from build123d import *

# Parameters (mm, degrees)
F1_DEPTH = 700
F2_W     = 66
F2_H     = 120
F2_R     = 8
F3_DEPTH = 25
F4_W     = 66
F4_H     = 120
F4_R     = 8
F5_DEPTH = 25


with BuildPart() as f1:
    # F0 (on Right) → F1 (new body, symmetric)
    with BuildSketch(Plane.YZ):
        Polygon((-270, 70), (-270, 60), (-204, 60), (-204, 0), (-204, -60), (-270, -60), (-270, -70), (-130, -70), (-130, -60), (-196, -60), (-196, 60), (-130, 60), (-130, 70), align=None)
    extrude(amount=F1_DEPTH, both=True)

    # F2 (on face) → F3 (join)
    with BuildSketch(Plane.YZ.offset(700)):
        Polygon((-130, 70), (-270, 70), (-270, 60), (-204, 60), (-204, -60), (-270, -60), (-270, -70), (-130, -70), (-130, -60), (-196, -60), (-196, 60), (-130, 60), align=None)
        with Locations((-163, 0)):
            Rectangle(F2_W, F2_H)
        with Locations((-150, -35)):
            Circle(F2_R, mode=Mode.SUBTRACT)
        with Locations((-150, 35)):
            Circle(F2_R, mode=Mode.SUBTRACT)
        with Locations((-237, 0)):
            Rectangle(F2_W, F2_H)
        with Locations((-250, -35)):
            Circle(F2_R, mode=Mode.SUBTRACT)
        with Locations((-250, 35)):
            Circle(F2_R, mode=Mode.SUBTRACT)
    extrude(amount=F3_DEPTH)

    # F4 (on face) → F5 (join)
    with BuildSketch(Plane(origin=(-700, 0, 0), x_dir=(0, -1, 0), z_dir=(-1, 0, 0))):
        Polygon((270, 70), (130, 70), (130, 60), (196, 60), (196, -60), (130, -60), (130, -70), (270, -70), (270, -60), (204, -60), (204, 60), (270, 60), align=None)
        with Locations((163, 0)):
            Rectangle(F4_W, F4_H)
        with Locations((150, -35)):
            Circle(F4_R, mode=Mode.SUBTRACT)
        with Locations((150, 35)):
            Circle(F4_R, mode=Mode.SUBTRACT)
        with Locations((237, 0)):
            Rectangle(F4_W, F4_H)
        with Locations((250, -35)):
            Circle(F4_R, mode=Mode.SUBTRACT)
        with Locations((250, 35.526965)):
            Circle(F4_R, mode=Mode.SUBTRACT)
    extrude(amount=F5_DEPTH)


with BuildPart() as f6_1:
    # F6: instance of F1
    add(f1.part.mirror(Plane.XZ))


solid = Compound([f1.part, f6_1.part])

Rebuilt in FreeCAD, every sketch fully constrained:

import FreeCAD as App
import Part
import Sketcher

V = App.Vector


def add_polygon(sketch, points):
    """Adds a closed chain of lines whose ends are joined by coincident constraints."""
    first, n = sketch.GeometryCount, len(points)
    for a, b in zip(points, points[1:] + points[:1]):
        sketch.addGeometry(Part.LineSegment(App.Vector(*a, 0), App.Vector(*b, 0)), False)
    for i in range(n):
        sketch.addConstraint(Sketcher.Constraint("Coincident", first + i, 2, first + (i + 1) % n, 1))

doc = App.newDocument("Part")
params = doc.addObject("Spreadsheet::Sheet", "Params")
for row, (alias, value) in enumerate([
    ("sketch1_width", "66 mm"),
    ("sketch1_width2", "140 mm"),
    ("sketch1_height", "10 mm"),
    ("sketch1_height2", "120 mm"),
    ("pad1_length", "1400 mm"),
    ("sketch2_diameter", "16 mm"),
    ("sketch2_width", "140 mm"),
    ("pad2_length", "25 mm"),
    ("sketch3_diameter", "16 mm"),
    ("sketch3_width", "140 mm"),
    ("pad3_length", "25 mm"),
], start=1):
    params.set(f"A{row}", alias)
    params.set(f"B{row}", "=" + value)
    params.setAlias(f"B{row}", alias)

body = doc.addObject("PartDesign::Body", "Body")

# Sketch on YZ plane
sketch1 = doc.addObject("Sketcher::SketchObject", "Sketch")
body.addObject(sketch1)
sketch1.AttachmentSupport = (doc.YZ_Plane, [""])
sketch1.MapMode = "FlatFace"
add_polygon(sketch1, [(-270, 70), (-270, 60), (-204, 60), (-204, -60), (-270, -60), (-270, -70), (-130, -70), (-130, -60), (-196, -60), (-196, 60), (-130, 60), (-130, 70)])  # lines 0-11
sketch1.addConstraint(Sketcher.Constraint("Vertical", 0))
sketch1.addConstraint(Sketcher.Constraint("Horizontal", 1))
sketch1.addConstraint(Sketcher.Constraint("Vertical", 2))
sketch1.addConstraint(Sketcher.Constraint("Horizontal", 3))
sketch1.addConstraint(Sketcher.Constraint("Vertical", 4))
sketch1.addConstraint(Sketcher.Constraint("Horizontal", 5))
sketch1.addConstraint(Sketcher.Constraint("Vertical", 6))
sketch1.addConstraint(Sketcher.Constraint("Horizontal", 7))
sketch1.addConstraint(Sketcher.Constraint("Vertical", 8))
sketch1.addConstraint(Sketcher.Constraint("Horizontal", 9))
sketch1.addConstraint(Sketcher.Constraint("Vertical", 10))
sketch1.addConstraint(Sketcher.Constraint("Horizontal", 11))
sketch1.addConstraint(Sketcher.Constraint("Symmetric", 0, 2, 3, 2, -1))
sketch1.addConstraint(Sketcher.Constraint("Symmetric", 6, 2, 9, 2, -1))
sketch1.addConstraint(Sketcher.Constraint("Horizontal", 3, 2, 6, 2))
sketch1.addConstraint(Sketcher.Constraint("Equal", 3, 7))
sketch1.addConstraint(Sketcher.Constraint("Equal", 0, 4))
sketch1.addConstraint(Sketcher.Constraint("DistanceX", 1, 1, 1, 2, 66.0))
sketch1.addConstraint(Sketcher.Constraint("DistanceX", 5, 1, 5, 2, 140.0))
sketch1.addConstraint(Sketcher.Constraint("DistanceY", 0, 2, 0, 1, 10.0))
sketch1.addConstraint(Sketcher.Constraint("DistanceY", 2, 2, 2, 1, 120.0))
sketch1.addConstraint(Sketcher.Constraint("DistanceX", 0, 2, -1, 1, 270.0))
sketch1.setExpression("Constraints[29]", "Params.sketch1_width")
sketch1.setExpression("Constraints[30]", "Params.sketch1_width2")
sketch1.setExpression("Constraints[31]", "Params.sketch1_height")
sketch1.setExpression("Constraints[32]", "Params.sketch1_height2")
pad1 = doc.addObject("PartDesign::Pad", "Pad")
body.addObject(pad1)
pad1.Profile = sketch1
pad1.setExpression("Length", "Params.pad1_length")
pad1.Midplane = True

# Sketch on YZ plane
sketch2 = doc.addObject("Sketcher::SketchObject", "Sketch001")
body.addObject(sketch2)
sketch2.AttachmentSupport = (doc.YZ_Plane, [""])
sketch2.MapMode = "FlatFace"
sketch2.AttachmentOffset = App.Placement(V(0, 0, 700), App.Rotation())
add_polygon(sketch2, [(-130, 70), (-270, 70), (-270, -70), (-130, -70)])  # lines 0-3
sketch2.addGeometry(Part.Circle(V(-250, -35, 0), V(0, 0, 1), 8), False)  # 4
sketch2.addGeometry(Part.Circle(V(-150, -35, 0), V(0, 0, 1), 8), False)  # 5
sketch2.addGeometry(Part.Circle(V(-250, 35, 0), V(0, 0, 1), 8), False)  # 6
sketch2.addGeometry(Part.Circle(V(-150, 35, 0), V(0, 0, 1), 8), False)  # 7
sketch2.addConstraint(Sketcher.Constraint("Horizontal", 0))
sketch2.addConstraint(Sketcher.Constraint("Vertical", 1))
sketch2.addConstraint(Sketcher.Constraint("Horizontal", 2))
sketch2.addConstraint(Sketcher.Constraint("Vertical", 3))
sketch2.addConstraint(Sketcher.Constraint("Equal", 4, 5))
sketch2.addConstraint(Sketcher.Constraint("Equal", 5, 6))
sketch2.addConstraint(Sketcher.Constraint("Equal", 6, 7))
sketch2.addConstraint(Sketcher.Constraint("Symmetric", 4, 3, 6, 3, -1))
sketch2.addConstraint(Sketcher.Constraint("Symmetric", 5, 3, 7, 3, -1))
sketch2.addConstraint(Sketcher.Constraint("Horizontal", 4, 3, 5, 3))
sketch2.addConstraint(Sketcher.Constraint("Equal", 2, 1))
sketch2.addConstraint(Sketcher.Constraint("Diameter", 4, 16.0))
sketch2.addConstraint(Sketcher.Constraint("DistanceX", 0, 2, 0, 1, 140.0))
sketch2.addConstraint(Sketcher.Constraint("DistanceX", 4, 3, -1, 1, 250.0))
sketch2.addConstraint(Sketcher.Constraint("DistanceY", 4, 3, -1, 1, 35.0))
sketch2.addConstraint(Sketcher.Constraint("DistanceX", 5, 3, -1, 1, 150.0))
sketch2.addConstraint(Sketcher.Constraint("DistanceX", 0, 2, -1, 1, 270.0))
sketch2.addConstraint(Sketcher.Constraint("DistanceY", -1, 1, 0, 2, 70.0))
sketch2.setExpression("Constraints[15]", "Params.sketch2_diameter")
sketch2.setExpression("Constraints[16]", "Params.sketch2_width")
pad2 = doc.addObject("PartDesign::Pad", "Pad001")
body.addObject(pad2)
pad2.Profile = sketch2
pad2.setExpression("Length", "Params.pad2_length")

# Sketch on YZ plane
sketch3 = doc.addObject("Sketcher::SketchObject", "Sketch002")
body.addObject(sketch3)
sketch3.AttachmentSupport = (doc.YZ_Plane, [""])
sketch3.MapMode = "FlatFace"
sketch3.AttachmentOffset = App.Placement(V(0, 0, -700), App.Rotation())
add_polygon(sketch3, [(-270, 70), (-130, 70), (-130, -70), (-270, -70)])  # lines 0-3
sketch3.addGeometry(Part.Circle(V(-150, -35, 0), V(0, 0, 1), 8), False)  # 4
sketch3.addGeometry(Part.Circle(V(-250, -35, 0), V(0, 0, 1), 8), False)  # 5
sketch3.addGeometry(Part.Circle(V(-150, 35, 0), V(0, 0, 1), 8), False)  # 6
sketch3.addGeometry(Part.Circle(V(-250, 36, 0), V(0, 0, 1), 8), False)  # 7
sketch3.addConstraint(Sketcher.Constraint("Horizontal", 0))
sketch3.addConstraint(Sketcher.Constraint("Vertical", 1))
sketch3.addConstraint(Sketcher.Constraint("Horizontal", 2))
sketch3.addConstraint(Sketcher.Constraint("Vertical", 3))
sketch3.addConstraint(Sketcher.Constraint("Equal", 4, 5))
sketch3.addConstraint(Sketcher.Constraint("Equal", 5, 6))
sketch3.addConstraint(Sketcher.Constraint("Equal", 6, 7))
sketch3.addConstraint(Sketcher.Constraint("Symmetric", 4, 3, 6, 3, -1))
sketch3.addConstraint(Sketcher.Constraint("Horizontal", 4, 3, 5, 3))
sketch3.addConstraint(Sketcher.Constraint("Vertical", 5, 3, 7, 3))
sketch3.addConstraint(Sketcher.Constraint("Equal", 2, 1))
sketch3.addConstraint(Sketcher.Constraint("Diameter", 4, 16.0))
sketch3.addConstraint(Sketcher.Constraint("DistanceX", 0, 1, 0, 2, 140.0))
sketch3.addConstraint(Sketcher.Constraint("DistanceX", 4, 3, -1, 1, 150.0))
sketch3.addConstraint(Sketcher.Constraint("DistanceY", 4, 3, -1, 1, 35.0))
sketch3.addConstraint(Sketcher.Constraint("DistanceX", 5, 3, -1, 1, 250.0))
sketch3.addConstraint(Sketcher.Constraint("DistanceX", 0, 2, -1, 1, 130.0))
sketch3.addConstraint(Sketcher.Constraint("DistanceY", -1, 1, 0, 2, 70.0))
sketch3.addConstraint(Sketcher.Constraint("DistanceY", -1, 1, 7, 3, 35.526965))
sketch3.setExpression("Constraints[15]", "Params.sketch3_diameter")
sketch3.setExpression("Constraints[16]", "Params.sketch3_width")
pad3 = doc.addObject("PartDesign::Pad", "Pad002")
body.addObject(pad3)
pad3.Profile = sketch3
pad3.setExpression("Length", "Params.pad3_length")
pad3.Reversed = True
body2 = doc.addObject("PartDesign::Body", "Body001")
doc.recompute()

mirroring = doc.addObject("Part::Mirroring", "Mirroring")
mirroring.Source = body
mirroring.Base = V(0, 0, 0)
mirroring.Normal = V(0, -1, 0)
body2.BaseFeature = mirroring
doc.recompute()
mirroring.Visibility = False

doc.recompute()
